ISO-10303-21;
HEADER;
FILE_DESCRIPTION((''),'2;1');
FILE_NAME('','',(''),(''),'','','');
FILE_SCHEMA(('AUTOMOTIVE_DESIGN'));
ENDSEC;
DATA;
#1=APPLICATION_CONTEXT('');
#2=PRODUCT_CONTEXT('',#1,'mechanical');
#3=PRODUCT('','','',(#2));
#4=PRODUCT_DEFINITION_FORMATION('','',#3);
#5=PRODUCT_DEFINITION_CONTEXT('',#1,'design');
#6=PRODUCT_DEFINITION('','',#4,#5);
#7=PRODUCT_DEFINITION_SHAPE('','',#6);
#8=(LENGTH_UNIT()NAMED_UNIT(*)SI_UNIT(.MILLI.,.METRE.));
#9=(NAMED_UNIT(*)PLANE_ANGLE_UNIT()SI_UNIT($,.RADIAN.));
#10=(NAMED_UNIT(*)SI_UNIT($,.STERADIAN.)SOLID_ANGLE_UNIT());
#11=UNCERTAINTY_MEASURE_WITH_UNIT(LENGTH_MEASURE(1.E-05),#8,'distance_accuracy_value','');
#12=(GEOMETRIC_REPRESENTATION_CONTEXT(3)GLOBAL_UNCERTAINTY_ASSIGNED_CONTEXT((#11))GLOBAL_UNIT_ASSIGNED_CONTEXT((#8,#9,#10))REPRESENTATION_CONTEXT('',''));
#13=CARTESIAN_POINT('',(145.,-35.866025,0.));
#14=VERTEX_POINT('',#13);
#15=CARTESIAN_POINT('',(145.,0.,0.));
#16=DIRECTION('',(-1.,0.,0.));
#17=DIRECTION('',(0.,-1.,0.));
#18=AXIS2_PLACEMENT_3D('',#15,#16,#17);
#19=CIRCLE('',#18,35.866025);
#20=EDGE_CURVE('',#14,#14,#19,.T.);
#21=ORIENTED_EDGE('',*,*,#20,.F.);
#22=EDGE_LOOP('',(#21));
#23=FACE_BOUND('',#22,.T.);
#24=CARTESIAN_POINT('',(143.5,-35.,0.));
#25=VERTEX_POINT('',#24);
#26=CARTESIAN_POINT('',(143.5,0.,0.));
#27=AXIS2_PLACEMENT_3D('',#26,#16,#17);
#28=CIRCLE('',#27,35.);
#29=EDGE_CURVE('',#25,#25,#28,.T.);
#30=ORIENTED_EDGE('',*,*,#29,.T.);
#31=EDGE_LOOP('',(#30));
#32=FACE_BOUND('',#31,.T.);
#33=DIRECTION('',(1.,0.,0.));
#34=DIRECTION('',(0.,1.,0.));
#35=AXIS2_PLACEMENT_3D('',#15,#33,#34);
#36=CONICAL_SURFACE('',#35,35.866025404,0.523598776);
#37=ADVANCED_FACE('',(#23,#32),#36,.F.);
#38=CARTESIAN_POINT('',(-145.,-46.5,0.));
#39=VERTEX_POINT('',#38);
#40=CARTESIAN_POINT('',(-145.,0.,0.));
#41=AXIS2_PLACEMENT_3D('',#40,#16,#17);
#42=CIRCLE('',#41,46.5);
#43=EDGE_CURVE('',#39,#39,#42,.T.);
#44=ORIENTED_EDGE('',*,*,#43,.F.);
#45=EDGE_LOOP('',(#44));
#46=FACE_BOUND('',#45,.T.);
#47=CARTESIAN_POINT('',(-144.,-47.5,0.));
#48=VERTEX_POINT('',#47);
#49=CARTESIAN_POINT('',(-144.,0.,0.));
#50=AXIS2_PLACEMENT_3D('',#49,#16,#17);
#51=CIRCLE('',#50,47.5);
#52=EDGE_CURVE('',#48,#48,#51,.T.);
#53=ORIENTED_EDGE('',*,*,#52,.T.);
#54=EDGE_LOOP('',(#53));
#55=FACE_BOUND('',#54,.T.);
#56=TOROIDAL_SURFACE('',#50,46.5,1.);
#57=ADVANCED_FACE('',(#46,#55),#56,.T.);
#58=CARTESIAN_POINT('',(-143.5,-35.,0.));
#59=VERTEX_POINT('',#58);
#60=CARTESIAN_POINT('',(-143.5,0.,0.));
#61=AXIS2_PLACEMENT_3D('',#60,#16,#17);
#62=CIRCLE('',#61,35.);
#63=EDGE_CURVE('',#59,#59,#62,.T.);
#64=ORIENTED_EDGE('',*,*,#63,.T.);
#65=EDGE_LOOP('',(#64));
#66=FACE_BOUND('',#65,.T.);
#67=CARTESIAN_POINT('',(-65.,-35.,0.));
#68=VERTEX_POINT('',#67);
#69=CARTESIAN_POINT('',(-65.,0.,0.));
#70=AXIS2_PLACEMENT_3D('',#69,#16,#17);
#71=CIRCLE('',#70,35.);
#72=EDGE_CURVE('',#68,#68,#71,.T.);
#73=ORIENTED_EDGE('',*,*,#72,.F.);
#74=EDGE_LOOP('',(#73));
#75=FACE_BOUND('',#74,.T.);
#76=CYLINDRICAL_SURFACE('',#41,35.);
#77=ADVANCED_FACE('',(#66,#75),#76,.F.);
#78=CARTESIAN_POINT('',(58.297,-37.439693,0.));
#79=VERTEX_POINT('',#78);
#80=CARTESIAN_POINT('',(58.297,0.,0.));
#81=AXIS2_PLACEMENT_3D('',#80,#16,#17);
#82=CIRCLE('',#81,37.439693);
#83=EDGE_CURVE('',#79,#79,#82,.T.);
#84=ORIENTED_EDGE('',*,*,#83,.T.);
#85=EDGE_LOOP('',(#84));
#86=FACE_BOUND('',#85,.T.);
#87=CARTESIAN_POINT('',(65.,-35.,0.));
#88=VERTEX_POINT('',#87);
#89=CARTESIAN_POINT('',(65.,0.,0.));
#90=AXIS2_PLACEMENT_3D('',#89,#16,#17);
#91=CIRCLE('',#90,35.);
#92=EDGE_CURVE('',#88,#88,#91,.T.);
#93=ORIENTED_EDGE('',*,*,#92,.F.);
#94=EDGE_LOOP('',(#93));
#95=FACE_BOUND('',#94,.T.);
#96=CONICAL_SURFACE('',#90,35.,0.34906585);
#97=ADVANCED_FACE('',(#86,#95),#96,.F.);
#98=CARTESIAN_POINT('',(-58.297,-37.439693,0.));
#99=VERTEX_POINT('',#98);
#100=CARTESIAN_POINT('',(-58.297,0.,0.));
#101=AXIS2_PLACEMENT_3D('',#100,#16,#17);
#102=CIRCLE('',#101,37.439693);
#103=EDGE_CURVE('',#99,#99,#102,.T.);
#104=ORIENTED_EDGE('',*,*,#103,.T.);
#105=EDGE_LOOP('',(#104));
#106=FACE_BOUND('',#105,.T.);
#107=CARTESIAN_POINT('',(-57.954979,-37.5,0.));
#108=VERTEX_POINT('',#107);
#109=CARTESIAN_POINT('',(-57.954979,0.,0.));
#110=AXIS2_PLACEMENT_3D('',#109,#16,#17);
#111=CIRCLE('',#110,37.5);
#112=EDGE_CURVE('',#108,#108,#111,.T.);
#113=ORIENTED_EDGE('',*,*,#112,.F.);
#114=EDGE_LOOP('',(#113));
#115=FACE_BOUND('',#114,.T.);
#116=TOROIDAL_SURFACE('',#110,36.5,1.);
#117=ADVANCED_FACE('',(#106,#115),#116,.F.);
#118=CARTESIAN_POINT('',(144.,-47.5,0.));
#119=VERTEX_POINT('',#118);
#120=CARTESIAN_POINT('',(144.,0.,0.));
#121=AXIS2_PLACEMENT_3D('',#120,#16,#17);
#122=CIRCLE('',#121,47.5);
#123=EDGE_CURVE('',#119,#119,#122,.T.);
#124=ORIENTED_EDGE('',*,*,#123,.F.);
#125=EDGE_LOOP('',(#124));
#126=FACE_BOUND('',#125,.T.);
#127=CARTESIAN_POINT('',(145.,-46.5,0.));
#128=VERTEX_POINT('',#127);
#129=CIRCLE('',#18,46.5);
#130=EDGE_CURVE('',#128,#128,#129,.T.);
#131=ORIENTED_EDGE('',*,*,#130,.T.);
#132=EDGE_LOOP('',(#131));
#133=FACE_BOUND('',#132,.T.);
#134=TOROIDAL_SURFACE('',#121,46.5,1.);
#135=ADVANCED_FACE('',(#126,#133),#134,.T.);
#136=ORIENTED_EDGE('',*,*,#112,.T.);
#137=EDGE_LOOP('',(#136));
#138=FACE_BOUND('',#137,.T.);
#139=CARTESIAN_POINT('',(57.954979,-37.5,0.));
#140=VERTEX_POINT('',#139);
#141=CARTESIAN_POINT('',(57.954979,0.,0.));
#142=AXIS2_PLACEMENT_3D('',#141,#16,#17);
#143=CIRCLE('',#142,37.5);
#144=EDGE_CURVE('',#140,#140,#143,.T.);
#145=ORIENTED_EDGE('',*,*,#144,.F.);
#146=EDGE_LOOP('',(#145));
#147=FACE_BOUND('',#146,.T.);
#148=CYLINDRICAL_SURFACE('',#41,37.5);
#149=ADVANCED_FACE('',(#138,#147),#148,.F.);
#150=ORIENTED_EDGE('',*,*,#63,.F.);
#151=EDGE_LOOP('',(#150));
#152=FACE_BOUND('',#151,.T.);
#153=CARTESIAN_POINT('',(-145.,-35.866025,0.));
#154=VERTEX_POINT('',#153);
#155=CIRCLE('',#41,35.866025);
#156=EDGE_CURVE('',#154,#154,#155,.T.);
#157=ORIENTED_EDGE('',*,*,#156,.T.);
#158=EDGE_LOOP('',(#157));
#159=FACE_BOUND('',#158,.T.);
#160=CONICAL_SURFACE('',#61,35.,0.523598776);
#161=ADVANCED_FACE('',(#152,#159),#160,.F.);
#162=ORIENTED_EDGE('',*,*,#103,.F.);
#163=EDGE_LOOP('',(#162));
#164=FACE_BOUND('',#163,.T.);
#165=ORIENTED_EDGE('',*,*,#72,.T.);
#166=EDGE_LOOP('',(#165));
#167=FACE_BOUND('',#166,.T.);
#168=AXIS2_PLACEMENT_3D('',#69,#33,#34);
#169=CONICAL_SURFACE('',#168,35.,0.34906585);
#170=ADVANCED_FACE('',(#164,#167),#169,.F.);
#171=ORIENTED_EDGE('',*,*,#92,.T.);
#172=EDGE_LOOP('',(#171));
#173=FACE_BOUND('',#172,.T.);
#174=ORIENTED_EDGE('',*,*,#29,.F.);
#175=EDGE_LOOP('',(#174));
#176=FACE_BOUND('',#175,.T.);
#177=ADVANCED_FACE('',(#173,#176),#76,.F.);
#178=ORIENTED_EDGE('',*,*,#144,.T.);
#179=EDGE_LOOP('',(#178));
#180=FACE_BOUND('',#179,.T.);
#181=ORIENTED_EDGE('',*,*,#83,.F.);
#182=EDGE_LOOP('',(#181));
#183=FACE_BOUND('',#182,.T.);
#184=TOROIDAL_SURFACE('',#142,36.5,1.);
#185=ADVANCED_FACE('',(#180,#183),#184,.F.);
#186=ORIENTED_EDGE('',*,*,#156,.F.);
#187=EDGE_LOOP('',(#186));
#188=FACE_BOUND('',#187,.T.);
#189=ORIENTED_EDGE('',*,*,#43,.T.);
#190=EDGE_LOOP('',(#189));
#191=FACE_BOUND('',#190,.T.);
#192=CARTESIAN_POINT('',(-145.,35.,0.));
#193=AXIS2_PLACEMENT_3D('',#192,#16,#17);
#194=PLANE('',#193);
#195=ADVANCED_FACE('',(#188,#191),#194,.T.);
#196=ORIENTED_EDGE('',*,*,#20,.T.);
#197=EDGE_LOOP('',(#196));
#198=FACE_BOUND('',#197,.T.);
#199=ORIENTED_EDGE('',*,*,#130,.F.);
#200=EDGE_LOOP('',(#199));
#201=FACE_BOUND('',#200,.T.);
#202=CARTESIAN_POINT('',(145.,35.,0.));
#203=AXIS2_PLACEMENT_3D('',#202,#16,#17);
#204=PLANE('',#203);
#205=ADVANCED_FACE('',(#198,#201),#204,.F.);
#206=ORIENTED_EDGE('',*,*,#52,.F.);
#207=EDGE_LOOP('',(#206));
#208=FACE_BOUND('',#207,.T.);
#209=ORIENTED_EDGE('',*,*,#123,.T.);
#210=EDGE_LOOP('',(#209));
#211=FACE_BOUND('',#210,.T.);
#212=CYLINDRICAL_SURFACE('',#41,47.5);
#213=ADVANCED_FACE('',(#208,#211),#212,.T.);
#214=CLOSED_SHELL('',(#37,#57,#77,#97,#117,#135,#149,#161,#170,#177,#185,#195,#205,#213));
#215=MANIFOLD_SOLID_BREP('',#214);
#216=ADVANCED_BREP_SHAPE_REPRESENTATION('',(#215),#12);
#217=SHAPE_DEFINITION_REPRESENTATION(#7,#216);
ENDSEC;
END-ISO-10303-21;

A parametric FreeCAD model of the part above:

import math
import FreeCAD as App
import Part
import Sketcher

V = App.Vector
Q = App.Units.Quantity


def add_polygon(sketch, points):
    """Adds a closed chain of lines whose ends are joined by coincident constraints."""
    first, n = sketch.GeometryCount, len(points)
    for a, b in zip(points, points[1:] + points[:1]):
        sketch.addGeometry(Part.LineSegment(App.Vector(*a, 0), App.Vector(*b, 0)), False)
    for i in range(n):
        sketch.addConstraint(Sketcher.Constraint("Coincident", first + i, 2, first + (i + 1) % n, 1))

doc = App.newDocument("Part")
body = doc.addObject("PartDesign::Body", "Body")

# Sketch on XY plane
sketch1 = body.newObject("Sketcher::SketchObject", "Sketch")
sketch1.AttachmentSupport = (doc.getObject("XY_Plane"), [""])
sketch1.MapMode = "FlatFace"
sketch1.addGeometry(Part.LineSegment(V(-145, 46.5, 0), V(-145, 35, 0)), False)
sketch1.addGeometry(Part.LineSegment(V(-145, 35, 0), V(-65, 35, 0)), False)
sketch1.addGeometry(Part.LineSegment(V(-65, 35, 0), V(-58.3, 37.44, 0)), False)
sketch1.addGeometry(Part.ArcOfCircle(Part.Circle(V(-57.95, 36.5, 0), V(0, 0, 1), 1), math.radians(90), math.radians(110)), False)
sketch1.addGeometry(Part.LineSegment(V(-57.95, 37.5, 0), V(57.95, 37.5, 0)), False)
sketch1.addGeometry(Part.ArcOfCircle(Part.Circle(V(57.95, 36.5, 0), V(0, 0, 1), 1), math.radians(70), math.radians(90)), False)
sketch1.addGeometry(Part.LineSegment(V(58.3, 37.44, 0), V(65, 35, 0)), False)
sketch1.addGeometry(Part.LineSegment(V(65, 35, 0), V(145, 35, 0)), False)
sketch1.addGeometry(Part.LineSegment(V(145, 35, 0), V(145, 46.5, 0)), False)
sketch1.addGeometry(Part.ArcOfCircle(Part.Circle(V(144, 46.5, 0), V(0, 0, 1), 1), math.radians(0), math.radians(90)), False)
sketch1.addGeometry(Part.LineSegment(V(144, 47.5, 0), V(-144, 47.5, 0)), False)
sketch1.addGeometry(Part.ArcOfCircle(Part.Circle(V(-144, 46.5, 0), V(0, 0, 1), 1), math.radians(90), math.radians(180)), False)
sketch1.addConstraint(Sketcher.Constraint("Coincident", 0, 2, 1, 1))
sketch1.addConstraint(Sketcher.Constraint("Coincident", 1, 2, 2, 1))
sketch1.addConstraint(Sketcher.Constraint("Tangent", 2, 2, 3, 2))
sketch1.addConstraint(Sketcher.Constraint("Tangent", 3, 1, 4, 1))
sketch1.addConstraint(Sketcher.Constraint("Tangent", 4, 2, 5, 2))
sketch1.addConstraint(Sketcher.Constraint("Tangent", 5, 1, 6, 1))
sketch1.addConstraint(Sketcher.Constraint("Coincident", 6, 2, 7, 1))
sketch1.addConstraint(Sketcher.Constraint("Coincident", 7, 2, 8, 1))
sketch1.addConstraint(Sketcher.Constraint("Tangent", 8, 2, 9, 1))
sketch1.addConstraint(Sketcher.Constraint("Tangent", 9, 2, 10, 1))
sketch1.addConstraint(Sketcher.Constraint("Tangent", 10, 2, 11, 1))
sketch1.addConstraint(Sketcher.Constraint("Tangent", 11, 2, 0, 1))
sketch1.addConstraint(Sketcher.Constraint("Vertical", 0))
sketch1.addConstraint(Sketcher.Constraint("Horizontal", 1))
sketch1.addConstraint(Sketcher.Constraint("Horizontal", 4))
sketch1.addConstraint(Sketcher.Constraint("Horizontal", 7))
sketch1.addConstraint(Sketcher.Constraint("Vertical", 8))
sketch1.addConstraint(Sketcher.Constraint("Horizontal", 10))
sketch1.addConstraint(Sketcher.Constraint("Equal", 3, 5))
sketch1.addConstraint(Sketcher.Constraint("Equal", 5, 9))
sketch1.addConstraint(Sketcher.Constraint("Equal", 9, 11))
sketch1.addConstraint(Sketcher.Constraint("Symmetric", 2, 2, 5, 1, -2))
sketch1.addConstraint(Sketcher.Constraint("Symmetric", 0, 2, 7, 2, -2))
sketch1.addConstraint(Sketcher.Constraint("Radius", 3, Q("1 mm")))
sketch1.addConstraint(Sketcher.Constraint("DistanceX", 1, 1, 1, 2, Q("80 mm")))
sketch1.addConstraint(Sketcher.Constraint("DistanceX", 10, 2, 10, 1, Q("288 mm")))
sketch1.addConstraint(Sketcher.Constraint("Angle", 2, Q("20 deg")))
sketch1.addConstraint(Sketcher.Constraint("DistanceY", 0, 2, 0, 1, Q("11.5 mm")))
sketch1.addConstraint(Sketcher.Constraint("DistanceY", -1, 1, 0, 2, Q("35 mm")))
sketch1.addConstraint(Sketcher.Constraint("DistanceY", 5, 3, 9, 3, Q("10 mm")))
revolution = body.newObject("PartDesign::Revolution", "Revolution")
revolution.Profile = sketch1
revolution.ReferenceAxis = (sketch1, ["H_Axis"])
revolution.Angle = 360

# Sketch on XY plane
sketch2 = body.newObject("Sketcher::SketchObject", "Sketch001")
sketch2.AttachmentSupport = (doc.getObject("XY_Plane"), [""])
sketch2.MapMode = "FlatFace"
add_polygon(sketch2, [(145, 35.9), (143.5, 35), (145, 35)])  # lines 0-2
add_polygon(sketch2, [(-145, 35.9), (-145, 35), (-143.5, 35)])  # lines 3-5
sketch2.addConstraint(Sketcher.Constraint("Horizontal", 1))
sketch2.addConstraint(Sketcher.Constraint("Vertical", 2))
sketch2.addConstraint(Sketcher.Constraint("Vertical", 3))
sketch2.addConstraint(Sketcher.Constraint("Horizontal", 4))
sketch2.addConstraint(Sketcher.Constraint("Symmetric", 1, 2, 3, 2, -2))
sketch2.addConstraint(Sketcher.Constraint("Horizontal", 2, 2, 5, 2))
sketch2.addConstraint(Sketcher.Constraint("Equal", 1, 4))
sketch2.addConstraint(Sketcher.Constraint("Angle", 0, Q("-150 deg")))
sketch2.addConstraint(Sketcher.Constraint("DistanceX", 1, 1, 1, 2, Q("1.5 mm")))
sketch2.addConstraint(Sketcher.Constraint("DistanceY", -1, 1, 0, 2, Q("35 mm")))
sketch2.addConstraint(Sketcher.Constraint("DistanceX", -1, 1, 1, 2, Q("145 mm")))
groove = body.newObject("PartDesign::Groove", "Groove")
groove.Profile = sketch2
groove.ReferenceAxis = (sketch2, ["H_Axis"])
groove.Angle = 360

doc.recompute()
